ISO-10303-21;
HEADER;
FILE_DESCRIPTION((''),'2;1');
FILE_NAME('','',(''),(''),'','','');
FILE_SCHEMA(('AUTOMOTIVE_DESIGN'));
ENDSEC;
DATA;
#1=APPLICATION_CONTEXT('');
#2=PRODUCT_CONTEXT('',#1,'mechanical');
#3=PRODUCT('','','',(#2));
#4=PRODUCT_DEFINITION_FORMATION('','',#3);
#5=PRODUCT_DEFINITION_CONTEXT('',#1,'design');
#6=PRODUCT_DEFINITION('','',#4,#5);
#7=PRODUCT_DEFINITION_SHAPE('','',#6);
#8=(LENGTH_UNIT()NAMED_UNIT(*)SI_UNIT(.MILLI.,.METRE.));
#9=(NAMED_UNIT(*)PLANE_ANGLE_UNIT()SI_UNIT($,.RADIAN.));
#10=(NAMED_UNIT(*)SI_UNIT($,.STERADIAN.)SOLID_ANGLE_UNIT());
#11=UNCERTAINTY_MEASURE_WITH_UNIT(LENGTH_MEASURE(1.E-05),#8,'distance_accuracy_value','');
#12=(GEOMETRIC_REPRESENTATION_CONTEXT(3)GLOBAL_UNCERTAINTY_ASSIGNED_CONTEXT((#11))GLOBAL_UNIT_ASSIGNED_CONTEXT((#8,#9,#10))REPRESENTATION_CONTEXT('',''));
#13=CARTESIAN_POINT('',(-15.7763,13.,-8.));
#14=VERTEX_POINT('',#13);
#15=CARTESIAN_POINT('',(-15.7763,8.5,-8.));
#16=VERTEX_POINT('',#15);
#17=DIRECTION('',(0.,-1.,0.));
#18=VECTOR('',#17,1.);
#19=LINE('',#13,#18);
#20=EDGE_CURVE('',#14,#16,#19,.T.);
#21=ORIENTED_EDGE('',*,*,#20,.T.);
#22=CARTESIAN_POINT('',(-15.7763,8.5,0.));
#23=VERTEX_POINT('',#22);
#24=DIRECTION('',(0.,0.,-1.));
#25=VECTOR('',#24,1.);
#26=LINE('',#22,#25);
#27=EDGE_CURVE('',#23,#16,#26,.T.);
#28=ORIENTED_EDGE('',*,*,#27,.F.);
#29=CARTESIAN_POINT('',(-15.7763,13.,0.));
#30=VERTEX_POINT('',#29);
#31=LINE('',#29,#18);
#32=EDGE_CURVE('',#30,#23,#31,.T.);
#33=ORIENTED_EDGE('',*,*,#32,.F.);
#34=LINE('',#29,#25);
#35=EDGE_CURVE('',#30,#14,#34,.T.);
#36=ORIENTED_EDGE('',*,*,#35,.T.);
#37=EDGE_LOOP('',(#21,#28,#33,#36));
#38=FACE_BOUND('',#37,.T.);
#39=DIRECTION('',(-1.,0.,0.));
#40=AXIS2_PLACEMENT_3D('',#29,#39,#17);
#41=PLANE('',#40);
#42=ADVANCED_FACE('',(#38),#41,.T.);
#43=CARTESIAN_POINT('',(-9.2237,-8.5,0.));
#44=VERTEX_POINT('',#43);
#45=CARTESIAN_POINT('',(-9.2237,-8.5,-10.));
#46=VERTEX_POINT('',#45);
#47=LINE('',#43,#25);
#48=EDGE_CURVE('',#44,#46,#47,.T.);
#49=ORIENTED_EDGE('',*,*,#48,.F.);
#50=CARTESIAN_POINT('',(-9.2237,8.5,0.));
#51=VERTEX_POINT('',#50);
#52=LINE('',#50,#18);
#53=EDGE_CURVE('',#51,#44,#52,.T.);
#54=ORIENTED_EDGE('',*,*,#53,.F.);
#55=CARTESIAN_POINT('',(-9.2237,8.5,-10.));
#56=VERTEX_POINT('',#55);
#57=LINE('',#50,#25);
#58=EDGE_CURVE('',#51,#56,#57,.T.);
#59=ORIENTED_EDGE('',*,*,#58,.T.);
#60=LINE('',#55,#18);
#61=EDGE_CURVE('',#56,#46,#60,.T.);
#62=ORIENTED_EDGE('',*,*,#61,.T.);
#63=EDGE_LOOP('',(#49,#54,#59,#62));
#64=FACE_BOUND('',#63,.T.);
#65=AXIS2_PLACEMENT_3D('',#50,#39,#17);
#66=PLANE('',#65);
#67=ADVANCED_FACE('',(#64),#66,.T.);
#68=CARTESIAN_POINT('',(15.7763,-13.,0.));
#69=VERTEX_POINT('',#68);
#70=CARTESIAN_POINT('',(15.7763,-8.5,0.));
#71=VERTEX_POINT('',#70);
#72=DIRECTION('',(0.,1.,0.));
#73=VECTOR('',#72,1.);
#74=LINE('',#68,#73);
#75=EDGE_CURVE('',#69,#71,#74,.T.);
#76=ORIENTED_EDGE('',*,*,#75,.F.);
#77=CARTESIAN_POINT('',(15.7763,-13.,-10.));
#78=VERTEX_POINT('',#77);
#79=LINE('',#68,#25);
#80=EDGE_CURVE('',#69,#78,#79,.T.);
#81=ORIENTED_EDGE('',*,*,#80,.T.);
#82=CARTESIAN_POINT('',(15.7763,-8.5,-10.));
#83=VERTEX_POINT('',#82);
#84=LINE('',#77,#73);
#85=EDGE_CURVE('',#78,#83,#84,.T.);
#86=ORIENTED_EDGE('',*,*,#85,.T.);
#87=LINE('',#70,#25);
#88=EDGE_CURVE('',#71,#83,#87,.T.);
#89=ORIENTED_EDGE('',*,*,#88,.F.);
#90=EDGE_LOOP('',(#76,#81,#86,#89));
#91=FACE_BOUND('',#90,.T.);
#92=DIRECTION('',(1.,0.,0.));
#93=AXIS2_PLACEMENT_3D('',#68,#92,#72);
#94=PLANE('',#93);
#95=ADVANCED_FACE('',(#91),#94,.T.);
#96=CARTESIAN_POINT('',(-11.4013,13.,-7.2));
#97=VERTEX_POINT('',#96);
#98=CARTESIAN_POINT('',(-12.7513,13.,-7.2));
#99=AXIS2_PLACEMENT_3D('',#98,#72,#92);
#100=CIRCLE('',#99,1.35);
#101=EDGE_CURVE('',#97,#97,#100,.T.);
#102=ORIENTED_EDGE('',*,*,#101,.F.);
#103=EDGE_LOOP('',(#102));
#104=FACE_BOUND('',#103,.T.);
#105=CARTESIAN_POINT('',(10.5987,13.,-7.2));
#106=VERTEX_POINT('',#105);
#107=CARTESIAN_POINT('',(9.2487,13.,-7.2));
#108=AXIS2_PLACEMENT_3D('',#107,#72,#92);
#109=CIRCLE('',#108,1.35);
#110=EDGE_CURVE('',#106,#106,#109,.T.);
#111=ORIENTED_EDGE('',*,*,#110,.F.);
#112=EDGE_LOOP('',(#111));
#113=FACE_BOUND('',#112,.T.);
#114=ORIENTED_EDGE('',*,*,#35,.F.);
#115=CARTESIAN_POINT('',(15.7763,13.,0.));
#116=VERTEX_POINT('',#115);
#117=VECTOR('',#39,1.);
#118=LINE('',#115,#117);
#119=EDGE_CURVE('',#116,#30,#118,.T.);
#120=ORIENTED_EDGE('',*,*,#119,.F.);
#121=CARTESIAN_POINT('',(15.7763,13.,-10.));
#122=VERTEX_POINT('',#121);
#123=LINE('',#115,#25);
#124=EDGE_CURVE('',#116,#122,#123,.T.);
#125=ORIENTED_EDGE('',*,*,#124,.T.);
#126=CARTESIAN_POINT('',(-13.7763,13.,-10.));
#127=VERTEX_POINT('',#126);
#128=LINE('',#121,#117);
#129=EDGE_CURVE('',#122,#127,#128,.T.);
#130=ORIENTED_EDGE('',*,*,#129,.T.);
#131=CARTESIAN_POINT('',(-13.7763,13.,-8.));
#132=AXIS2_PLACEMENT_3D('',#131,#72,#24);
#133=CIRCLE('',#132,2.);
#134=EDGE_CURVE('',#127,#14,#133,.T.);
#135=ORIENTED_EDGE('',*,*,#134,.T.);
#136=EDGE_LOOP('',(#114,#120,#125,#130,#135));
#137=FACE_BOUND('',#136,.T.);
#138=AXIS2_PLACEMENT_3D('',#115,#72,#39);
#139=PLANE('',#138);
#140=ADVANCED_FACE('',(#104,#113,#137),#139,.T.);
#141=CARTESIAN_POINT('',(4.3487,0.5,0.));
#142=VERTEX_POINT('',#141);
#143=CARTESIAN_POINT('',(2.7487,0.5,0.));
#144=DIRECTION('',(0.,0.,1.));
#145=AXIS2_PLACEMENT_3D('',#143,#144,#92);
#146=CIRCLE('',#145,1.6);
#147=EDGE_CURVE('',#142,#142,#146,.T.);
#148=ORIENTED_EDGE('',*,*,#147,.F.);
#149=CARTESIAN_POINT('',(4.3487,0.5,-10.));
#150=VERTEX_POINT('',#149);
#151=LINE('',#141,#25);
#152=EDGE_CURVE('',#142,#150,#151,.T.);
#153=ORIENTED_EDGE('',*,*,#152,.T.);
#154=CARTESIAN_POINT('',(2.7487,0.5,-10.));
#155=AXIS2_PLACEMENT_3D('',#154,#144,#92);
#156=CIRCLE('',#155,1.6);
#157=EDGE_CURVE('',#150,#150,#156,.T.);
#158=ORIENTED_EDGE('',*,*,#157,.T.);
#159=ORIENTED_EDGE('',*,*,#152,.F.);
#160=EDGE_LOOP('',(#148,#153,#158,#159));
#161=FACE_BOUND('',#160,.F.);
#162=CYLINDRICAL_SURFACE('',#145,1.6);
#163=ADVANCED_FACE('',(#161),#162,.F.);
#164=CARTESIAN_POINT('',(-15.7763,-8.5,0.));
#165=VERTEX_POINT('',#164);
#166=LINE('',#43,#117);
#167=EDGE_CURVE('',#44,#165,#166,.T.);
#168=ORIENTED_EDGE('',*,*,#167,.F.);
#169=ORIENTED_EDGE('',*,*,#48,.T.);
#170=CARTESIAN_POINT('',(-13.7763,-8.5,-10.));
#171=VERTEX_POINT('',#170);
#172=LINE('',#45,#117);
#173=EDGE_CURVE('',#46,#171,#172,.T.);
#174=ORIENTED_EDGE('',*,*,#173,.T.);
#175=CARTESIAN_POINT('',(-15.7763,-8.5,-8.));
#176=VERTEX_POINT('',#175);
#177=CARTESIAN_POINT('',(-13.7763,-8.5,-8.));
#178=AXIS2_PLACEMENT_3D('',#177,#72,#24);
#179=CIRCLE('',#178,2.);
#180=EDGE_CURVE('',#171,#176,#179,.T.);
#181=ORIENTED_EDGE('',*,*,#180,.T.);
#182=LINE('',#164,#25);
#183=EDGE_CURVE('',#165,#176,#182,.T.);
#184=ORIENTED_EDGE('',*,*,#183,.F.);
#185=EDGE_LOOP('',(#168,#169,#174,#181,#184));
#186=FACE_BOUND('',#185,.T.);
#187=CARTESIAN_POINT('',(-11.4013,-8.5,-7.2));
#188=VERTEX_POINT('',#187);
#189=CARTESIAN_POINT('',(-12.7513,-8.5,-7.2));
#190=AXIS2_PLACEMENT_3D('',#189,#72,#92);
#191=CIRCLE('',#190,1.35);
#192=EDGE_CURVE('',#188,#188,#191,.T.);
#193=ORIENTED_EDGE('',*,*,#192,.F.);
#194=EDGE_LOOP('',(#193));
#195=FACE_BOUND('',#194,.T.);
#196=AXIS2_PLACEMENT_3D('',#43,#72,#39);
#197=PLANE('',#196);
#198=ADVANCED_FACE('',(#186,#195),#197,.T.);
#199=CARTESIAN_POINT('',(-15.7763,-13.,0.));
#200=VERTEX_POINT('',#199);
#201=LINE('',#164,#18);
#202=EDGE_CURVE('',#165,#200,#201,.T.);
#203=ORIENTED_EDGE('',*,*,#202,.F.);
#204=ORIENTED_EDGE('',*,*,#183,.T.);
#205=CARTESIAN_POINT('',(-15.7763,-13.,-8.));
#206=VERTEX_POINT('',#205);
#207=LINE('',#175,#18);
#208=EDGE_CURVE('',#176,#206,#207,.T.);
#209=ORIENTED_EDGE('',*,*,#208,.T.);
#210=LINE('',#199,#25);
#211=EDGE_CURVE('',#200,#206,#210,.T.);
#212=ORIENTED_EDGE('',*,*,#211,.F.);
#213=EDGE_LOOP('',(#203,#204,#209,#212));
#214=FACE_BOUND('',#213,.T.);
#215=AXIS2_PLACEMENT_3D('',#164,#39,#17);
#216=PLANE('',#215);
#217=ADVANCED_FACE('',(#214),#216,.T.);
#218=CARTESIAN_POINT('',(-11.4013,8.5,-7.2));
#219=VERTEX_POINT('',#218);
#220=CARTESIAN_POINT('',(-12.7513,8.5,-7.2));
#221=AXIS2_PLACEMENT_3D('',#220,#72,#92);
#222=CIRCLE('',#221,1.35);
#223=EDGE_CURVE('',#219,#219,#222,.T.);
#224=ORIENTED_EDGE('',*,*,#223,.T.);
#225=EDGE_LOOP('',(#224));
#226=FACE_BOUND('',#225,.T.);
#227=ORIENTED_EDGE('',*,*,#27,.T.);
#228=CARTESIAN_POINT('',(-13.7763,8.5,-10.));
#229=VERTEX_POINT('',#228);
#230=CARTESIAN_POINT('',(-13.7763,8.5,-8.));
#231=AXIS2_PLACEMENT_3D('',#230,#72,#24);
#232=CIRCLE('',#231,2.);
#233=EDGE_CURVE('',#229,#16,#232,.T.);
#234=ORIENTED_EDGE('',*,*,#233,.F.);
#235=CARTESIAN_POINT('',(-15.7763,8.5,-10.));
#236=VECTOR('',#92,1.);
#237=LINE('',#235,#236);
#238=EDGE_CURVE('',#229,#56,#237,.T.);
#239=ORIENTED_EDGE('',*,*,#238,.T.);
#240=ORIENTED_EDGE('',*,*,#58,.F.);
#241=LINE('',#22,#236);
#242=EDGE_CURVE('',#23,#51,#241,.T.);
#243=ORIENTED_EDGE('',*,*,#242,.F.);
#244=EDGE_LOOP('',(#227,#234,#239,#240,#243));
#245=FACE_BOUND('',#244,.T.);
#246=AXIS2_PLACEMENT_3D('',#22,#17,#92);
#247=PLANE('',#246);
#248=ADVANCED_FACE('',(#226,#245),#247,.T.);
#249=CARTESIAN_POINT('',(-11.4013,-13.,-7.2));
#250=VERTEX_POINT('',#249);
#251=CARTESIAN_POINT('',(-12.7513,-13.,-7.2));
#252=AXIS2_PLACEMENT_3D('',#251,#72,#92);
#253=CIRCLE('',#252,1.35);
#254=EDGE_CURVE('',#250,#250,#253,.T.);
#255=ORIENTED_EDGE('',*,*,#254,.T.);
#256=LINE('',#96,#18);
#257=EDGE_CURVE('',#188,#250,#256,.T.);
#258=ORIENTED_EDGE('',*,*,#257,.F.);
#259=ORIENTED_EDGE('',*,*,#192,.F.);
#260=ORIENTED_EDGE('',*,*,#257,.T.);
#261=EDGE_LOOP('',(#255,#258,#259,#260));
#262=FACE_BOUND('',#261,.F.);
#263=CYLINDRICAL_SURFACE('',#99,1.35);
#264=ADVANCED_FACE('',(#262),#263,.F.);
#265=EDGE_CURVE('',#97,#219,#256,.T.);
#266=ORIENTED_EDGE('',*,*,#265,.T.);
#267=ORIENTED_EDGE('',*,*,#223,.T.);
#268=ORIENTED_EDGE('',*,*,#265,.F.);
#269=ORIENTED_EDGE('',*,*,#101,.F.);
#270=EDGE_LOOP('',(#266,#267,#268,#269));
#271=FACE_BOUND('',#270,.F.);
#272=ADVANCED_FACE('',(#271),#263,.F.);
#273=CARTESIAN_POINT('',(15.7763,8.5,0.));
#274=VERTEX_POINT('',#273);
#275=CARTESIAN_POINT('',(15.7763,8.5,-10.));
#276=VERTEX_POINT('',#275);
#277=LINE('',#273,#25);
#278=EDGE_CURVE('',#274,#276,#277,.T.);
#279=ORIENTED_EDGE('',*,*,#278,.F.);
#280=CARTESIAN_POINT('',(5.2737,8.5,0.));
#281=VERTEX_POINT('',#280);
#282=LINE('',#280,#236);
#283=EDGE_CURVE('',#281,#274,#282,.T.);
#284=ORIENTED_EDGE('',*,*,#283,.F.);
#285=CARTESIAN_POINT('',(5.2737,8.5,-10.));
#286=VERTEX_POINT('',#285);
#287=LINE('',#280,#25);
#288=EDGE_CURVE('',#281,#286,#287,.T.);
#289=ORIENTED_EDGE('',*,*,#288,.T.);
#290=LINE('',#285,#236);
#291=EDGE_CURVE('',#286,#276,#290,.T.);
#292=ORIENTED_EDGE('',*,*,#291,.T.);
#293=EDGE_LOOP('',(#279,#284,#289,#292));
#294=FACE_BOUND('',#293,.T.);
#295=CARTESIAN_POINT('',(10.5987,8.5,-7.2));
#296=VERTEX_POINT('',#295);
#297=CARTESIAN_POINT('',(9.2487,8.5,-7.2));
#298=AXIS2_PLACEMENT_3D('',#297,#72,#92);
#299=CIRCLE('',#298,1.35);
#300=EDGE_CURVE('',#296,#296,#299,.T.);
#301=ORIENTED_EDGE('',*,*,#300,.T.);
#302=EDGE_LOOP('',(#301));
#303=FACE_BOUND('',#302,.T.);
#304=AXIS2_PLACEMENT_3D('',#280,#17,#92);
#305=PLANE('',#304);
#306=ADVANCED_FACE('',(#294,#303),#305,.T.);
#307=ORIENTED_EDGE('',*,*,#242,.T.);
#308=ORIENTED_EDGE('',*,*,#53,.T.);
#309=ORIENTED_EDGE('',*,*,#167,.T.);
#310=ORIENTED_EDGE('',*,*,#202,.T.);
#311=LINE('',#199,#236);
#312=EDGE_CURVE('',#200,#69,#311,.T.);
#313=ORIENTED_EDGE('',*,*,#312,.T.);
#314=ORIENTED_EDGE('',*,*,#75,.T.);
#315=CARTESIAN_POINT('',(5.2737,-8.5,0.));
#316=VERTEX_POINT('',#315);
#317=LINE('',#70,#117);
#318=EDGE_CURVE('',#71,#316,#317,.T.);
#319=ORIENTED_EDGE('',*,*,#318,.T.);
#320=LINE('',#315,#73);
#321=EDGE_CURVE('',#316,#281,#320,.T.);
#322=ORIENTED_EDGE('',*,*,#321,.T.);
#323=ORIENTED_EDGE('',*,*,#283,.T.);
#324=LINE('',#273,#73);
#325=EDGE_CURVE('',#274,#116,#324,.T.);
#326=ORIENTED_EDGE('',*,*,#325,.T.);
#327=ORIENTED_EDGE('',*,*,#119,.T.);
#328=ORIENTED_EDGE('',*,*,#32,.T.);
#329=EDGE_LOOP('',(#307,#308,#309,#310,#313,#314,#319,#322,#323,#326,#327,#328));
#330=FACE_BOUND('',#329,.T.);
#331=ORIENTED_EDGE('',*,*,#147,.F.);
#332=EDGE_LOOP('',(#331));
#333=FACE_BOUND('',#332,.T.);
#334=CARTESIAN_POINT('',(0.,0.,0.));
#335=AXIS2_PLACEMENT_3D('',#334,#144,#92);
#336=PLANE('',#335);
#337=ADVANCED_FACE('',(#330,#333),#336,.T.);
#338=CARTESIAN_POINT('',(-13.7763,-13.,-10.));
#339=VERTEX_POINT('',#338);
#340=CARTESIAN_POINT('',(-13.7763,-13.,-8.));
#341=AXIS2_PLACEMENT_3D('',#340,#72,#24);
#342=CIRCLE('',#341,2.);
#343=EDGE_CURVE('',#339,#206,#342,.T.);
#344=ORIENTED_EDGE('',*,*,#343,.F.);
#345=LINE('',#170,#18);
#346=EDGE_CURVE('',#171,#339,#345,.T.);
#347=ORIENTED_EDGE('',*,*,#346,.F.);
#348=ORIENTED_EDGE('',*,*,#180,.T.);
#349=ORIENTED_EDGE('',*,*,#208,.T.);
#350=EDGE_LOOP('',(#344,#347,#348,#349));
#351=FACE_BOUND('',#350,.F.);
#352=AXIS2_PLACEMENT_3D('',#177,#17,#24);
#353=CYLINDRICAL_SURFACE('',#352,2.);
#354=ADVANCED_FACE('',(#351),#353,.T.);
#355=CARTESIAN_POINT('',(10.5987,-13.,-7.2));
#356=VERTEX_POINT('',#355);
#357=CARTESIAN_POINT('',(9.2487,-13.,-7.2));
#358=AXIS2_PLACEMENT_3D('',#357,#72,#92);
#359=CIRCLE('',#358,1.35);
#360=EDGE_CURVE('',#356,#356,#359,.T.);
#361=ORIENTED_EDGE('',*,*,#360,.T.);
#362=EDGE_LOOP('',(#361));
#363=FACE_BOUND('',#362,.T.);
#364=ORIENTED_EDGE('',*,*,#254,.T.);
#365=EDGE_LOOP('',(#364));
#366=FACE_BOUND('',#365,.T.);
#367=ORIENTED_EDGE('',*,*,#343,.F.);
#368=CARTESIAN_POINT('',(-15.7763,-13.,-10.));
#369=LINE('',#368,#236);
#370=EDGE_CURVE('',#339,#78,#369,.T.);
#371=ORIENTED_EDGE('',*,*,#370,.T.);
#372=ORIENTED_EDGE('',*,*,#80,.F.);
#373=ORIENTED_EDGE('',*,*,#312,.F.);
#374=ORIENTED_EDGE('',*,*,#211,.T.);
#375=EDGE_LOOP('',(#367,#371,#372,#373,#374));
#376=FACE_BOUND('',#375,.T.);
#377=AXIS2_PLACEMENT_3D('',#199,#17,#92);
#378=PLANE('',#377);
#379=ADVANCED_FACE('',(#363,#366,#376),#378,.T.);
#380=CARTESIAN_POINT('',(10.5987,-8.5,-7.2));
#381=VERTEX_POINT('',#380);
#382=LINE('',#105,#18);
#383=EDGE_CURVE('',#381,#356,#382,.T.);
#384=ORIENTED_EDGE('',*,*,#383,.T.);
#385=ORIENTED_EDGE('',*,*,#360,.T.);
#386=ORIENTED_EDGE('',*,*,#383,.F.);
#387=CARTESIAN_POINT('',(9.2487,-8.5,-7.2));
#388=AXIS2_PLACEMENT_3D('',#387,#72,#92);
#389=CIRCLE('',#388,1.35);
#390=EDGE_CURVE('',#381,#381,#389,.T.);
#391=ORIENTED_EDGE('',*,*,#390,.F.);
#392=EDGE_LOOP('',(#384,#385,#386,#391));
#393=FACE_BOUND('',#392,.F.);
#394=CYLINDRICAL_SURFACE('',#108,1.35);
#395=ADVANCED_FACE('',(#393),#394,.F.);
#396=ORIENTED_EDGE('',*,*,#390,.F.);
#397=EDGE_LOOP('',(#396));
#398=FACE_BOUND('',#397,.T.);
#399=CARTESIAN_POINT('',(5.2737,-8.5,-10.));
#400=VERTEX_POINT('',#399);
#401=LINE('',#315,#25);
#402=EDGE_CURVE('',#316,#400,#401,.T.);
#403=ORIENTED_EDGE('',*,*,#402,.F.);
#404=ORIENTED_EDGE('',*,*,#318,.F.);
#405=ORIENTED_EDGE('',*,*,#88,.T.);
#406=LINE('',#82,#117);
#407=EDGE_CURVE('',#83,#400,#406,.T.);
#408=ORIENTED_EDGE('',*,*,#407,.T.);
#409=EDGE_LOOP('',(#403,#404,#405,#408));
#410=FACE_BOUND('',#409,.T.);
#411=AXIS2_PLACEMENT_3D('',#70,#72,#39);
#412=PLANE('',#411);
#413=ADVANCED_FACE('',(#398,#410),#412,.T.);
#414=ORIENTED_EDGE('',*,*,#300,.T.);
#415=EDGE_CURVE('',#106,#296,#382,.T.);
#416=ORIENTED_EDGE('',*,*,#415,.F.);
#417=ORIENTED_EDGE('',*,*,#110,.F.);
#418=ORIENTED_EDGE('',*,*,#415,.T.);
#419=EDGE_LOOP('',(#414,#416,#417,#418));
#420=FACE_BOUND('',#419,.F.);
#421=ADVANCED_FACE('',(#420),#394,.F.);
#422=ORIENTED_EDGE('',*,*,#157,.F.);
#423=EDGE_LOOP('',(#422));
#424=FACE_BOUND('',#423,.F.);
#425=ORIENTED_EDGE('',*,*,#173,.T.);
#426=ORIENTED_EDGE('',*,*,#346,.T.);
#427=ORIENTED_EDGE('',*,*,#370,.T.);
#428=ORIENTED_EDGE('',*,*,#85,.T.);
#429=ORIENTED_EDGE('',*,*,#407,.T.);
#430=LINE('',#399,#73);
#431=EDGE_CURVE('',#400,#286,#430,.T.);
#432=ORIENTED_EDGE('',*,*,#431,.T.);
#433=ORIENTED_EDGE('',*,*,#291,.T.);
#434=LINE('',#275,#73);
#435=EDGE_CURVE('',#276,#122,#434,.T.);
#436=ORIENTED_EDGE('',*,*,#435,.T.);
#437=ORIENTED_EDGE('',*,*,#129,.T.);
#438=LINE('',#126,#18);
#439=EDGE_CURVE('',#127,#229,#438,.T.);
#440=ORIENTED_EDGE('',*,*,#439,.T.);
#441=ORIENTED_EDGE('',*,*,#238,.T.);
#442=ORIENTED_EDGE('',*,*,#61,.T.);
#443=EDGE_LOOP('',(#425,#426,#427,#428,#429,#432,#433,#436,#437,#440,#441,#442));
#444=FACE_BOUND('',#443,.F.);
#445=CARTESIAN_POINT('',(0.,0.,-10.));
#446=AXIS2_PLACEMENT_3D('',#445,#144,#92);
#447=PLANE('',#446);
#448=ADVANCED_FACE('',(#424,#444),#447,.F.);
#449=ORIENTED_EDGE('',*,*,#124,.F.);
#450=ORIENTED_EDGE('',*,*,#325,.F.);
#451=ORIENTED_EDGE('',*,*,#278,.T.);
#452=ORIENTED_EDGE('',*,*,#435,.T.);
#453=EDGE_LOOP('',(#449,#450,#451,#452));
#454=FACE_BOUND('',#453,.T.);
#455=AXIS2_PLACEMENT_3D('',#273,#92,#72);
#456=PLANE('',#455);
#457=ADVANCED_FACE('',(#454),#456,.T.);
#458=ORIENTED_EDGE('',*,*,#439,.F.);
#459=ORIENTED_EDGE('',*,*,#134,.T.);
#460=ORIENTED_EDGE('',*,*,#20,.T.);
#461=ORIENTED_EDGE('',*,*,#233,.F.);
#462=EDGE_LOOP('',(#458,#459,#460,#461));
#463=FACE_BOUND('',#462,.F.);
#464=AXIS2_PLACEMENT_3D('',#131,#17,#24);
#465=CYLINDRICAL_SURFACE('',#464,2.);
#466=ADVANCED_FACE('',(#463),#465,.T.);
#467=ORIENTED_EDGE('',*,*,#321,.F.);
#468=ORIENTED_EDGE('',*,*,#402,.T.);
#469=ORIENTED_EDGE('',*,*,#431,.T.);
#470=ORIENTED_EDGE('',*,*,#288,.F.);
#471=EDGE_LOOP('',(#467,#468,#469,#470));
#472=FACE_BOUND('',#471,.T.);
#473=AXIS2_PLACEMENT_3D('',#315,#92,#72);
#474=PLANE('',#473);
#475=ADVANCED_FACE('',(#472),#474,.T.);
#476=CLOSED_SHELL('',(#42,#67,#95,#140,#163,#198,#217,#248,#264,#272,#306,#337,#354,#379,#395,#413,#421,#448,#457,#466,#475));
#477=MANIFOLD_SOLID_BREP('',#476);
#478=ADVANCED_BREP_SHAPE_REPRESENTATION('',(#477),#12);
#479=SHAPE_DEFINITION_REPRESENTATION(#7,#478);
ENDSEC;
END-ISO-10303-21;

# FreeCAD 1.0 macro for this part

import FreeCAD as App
import Part
import Sketcher

V = App.Vector
Q = App.Units.Quantity


def edges_at(feature, points):
    """Names of the edges that pass closest to the given points."""
    edges = feature.Shape.Edges
    near = lambda p: min(range(len(edges)), key=lambda i: edges[i].distToShape(Part.Vertex(*p))[0])
    return sorted({f"Edge{near(p) + 1}" for p in points})

doc = App.newDocument("Part")
body = doc.addObject("PartDesign::Body", "Body")

sketch1 = body.newObject("Sketcher::SketchObject", "Sketch")
sketch1.AttachmentSupport = (doc.getObject("XY_Plane"), [""])
sketch1.MapMode = "FlatFace"
sketch1.addGeometry([
    Part.LineSegment(V(5.3, -8.5, 0), V(5.3, 8.5, 0)),
    Part.LineSegment(V(5.3, 8.5, 0), V(15.8, 8.5, 0)),
    Part.LineSegment(V(15.8, 8.5, 0), V(15.8, 13, 0)),
    Part.LineSegment(V(15.8, 13, 0), V(-15.8, 13, 0)),
    Part.LineSegment(V(-15.8, 13, 0), V(-15.8, 8.5, 0)),
    Part.LineSegment(V(-15.8, 8.5, 0), V(-9.2, 8.5, 0)),
    Part.LineSegment(V(-9.2, 8.5, 0), V(-9.2, -8.5, 0)),
    Part.LineSegment(V(-9.2, -8.5, 0), V(-15.8, -8.5, 0)),
    Part.LineSegment(V(-15.8, -8.5, 0), V(-15.8, -13, 0)),
    Part.LineSegment(V(-15.8, -13, 0), V(15.8, -13, 0)),
    Part.LineSegment(V(15.8, -13, 0), V(15.8, -8.5, 0)),
    Part.LineSegment(V(15.8, -8.5, 0), V(5.3, -8.5, 0)),
    Part.Circle(V(2.7, 0.5, 0), V(0, 0, 1), 1.6),
], False)
sketch1.addConstraint([
    Sketcher.Constraint("Coincident", 0, 2, 1, 1),
    Sketcher.Constraint("Coincident", 1, 2, 2, 1),
    Sketcher.Constraint("Coincident", 2, 2, 3, 1),
    Sketcher.Constraint("Coincident", 3, 2, 4, 1),
    Sketcher.Constraint("Coincident", 4, 2, 5, 1),
    Sketcher.Constraint("Coincident", 5, 2, 6, 1),
    Sketcher.Constraint("Coincident", 6, 2, 7, 1),
    Sketcher.Constraint("Coincident", 7, 2, 8, 1),
    Sketcher.Constraint("Coincident", 8, 2, 9, 1),
    Sketcher.Constraint("Coincident", 9, 2, 10, 1),
    Sketcher.Constraint("Coincident", 10, 2, 11, 1),
    Sketcher.Constraint("Coincident", 11, 2, 0, 1),
    Sketcher.Constraint("Vertical", 0),
    Sketcher.Constraint("Horizontal", 1),
    Sketcher.Constraint("Vertical", 2),
    Sketcher.Constraint("Horizontal", 3),
    Sketcher.Constraint("Vertical", 4),
    Sketcher.Constraint("Horizontal", 5),
    Sketcher.Constraint("Vertical", 6),
    Sketcher.Constraint("Horizontal", 7),
    Sketcher.Constraint("Vertical", 8),
    Sketcher.Constraint("Horizontal", 9),
    Sketcher.Constraint("Vertical", 10),
    Sketcher.Constraint("Horizontal", 11),
    Sketcher.Constraint("Symmetric", 1, 2, 7, 2, -1, 1),
    Sketcher.Constraint("Symmetric", 3, 2, 9, 2, -1, 1),
    Sketcher.Constraint("Symmetric", 1, 2, 4, 2, -2),
    Sketcher.Constraint("Horizontal", 7, 2, 10, 2),
    Sketcher.Constraint("Diameter", 12, Q("3.2 mm")),
    Sketcher.Constraint("DistanceY", 0, 1, 0, 2, Q("17 mm")),
    Sketcher.Constraint("DistanceY", 2, 1, 2, 2, Q("4.5 mm")),
    Sketcher.Constraint("DistanceY", 12, 3, 0, 2, Q("8 mm")),
    Sketcher.Constraint("DistanceX", 5, 2, 1, 2, Q("25 mm")),
    Sketcher.Constraint("DistanceX", 3, 2, 0, 2, Q("21.05 mm")),
    Sketcher.Constraint("DistanceX", 1, 1, 1, 2, Q("10.5026 mm")),
    Sketcher.Constraint("DistanceX", 12, 3, 0, 2, Q("2.525 mm")),
])
pad1 = body.newObject("PartDesign::Pad", "Pad")
pad1.Profile = sketch1
pad1.Length = 10
pad1.Reversed = True

sketch2 = body.newObject("Sketcher::SketchObject", "Sketch001")
sketch2.AttachmentSupport = (doc.getObject("XZ_Plane"), [""])
sketch2.MapMode = "FlatFace"
sketch2.AttachmentOffset = App.Placement(V(0, 0, -13), App.Rotation())
sketch2.addGeometry([
    Part.Circle(V(-12.8, -7.2, 0), V(0, 0, 1), 1.4),
    Part.Circle(V(9.2, -7.2, 0), V(0, 0, 1), 1.4),
], False)
sketch2.addConstraint([
    Sketcher.Constraint("Equal", 0, 1),
    Sketcher.Constraint("Horizontal", 0, 3, 1, 3),
    Sketcher.Constraint("Diameter", 0, Q("2.7 mm")),
    Sketcher.Constraint("DistanceX", 0, 3, 1, 3, Q("22 mm")),
    Sketcher.Constraint("DistanceY", 0, 3, -1, 1, Q("7.2 mm")),
    Sketcher.Constraint("DistanceX", 0, 3, -1, 1, Q("12.7513 mm")),
])
pocket1 = body.newObject("PartDesign::Pocket", "Pocket")
pocket1.Profile = sketch2
pocket1.Type = "ThroughAll"
pocket1.Reversed = True
doc.recompute()

fillet = body.newObject("PartDesign::Fillet", "Fillet")
fillet.Base = (pocket1, edges_at(pocket1, [(-15.776, 10.75, -10), (-15.776, -10.75, -10)]))
fillet.Radius = 2

doc.recompute()
